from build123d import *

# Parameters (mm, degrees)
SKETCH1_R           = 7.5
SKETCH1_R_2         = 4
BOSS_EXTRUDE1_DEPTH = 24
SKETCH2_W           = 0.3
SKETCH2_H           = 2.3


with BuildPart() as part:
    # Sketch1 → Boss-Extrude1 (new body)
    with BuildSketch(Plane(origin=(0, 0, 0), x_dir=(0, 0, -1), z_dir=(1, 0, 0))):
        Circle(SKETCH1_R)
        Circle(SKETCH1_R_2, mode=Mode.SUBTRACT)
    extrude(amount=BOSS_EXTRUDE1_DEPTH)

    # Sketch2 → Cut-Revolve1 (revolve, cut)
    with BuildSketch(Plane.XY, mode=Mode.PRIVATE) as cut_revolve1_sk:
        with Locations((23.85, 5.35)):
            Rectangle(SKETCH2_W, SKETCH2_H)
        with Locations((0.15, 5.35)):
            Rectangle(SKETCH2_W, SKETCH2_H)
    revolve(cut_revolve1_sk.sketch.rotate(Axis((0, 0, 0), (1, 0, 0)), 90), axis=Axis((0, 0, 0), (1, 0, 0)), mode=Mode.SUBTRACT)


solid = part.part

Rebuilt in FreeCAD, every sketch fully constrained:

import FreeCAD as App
import Part
import Sketcher
Q = App.Units.Quantity

doc = App.newDocument("Part")
body = doc.addObject("PartDesign::Body", "Body")

sketch1 = body.newObject("Sketcher::SketchObject", "Sketch")
sketch1.AttachmentSupport = (doc.getObject("YZ_Plane"), [""])
sketch1.MapMode = "FlatFace"
sketch1.addGeometry([
    Part.Circle(App.Vector(0, 0, 0), App.Vector(0, 0, 1), 7.5),
    Part.Circle(App.Vector(0, 0, 0), App.Vector(0, 0, 1), 4),
], False)
sketch1.addConstraint([
    Sketcher.Constraint("Coincident", 0, 3, -1, 1),
    Sketcher.Constraint("Coincident", 1, 3, -1, 1),
    Sketcher.Constraint("Diameter", 0, Q("15 mm")),
    Sketcher.Constraint("Diameter", 1, Q("8 mm")),
])
pad1 = body.newObject("PartDesign::Pad", "Pad")
pad1.Profile = sketch1
pad1.Length = 24

sketch2 = body.newObject("Sketcher::SketchObject", "Sketch001")
sketch2.AttachmentSupport = (doc.getObject("XY_Plane"), [""])
sketch2.MapMode = "FlatFace"
sketch2.addGeometry([
    Part.LineSegment(App.Vector(23.7, 6.5, 0), App.Vector(23.7, 4.2, 0)),
    Part.LineSegment(App.Vector(23.7, 4.2, 0), App.Vector(24, 4.2, 0)),
    Part.LineSegment(App.Vector(24, 4.2, 0), App.Vector(24, 6.5, 0)),
    Part.LineSegment(App.Vector(24, 6.5, 0), App.Vector(23.7, 6.5, 0)),
    Part.LineSegment(App.Vector(0, 6.5, 0), App.Vector(0, 4.2, 0)),
    Part.LineSegment(App.Vector(0, 4.2, 0), App.Vector(0.3, 4.2, 0)),
    Part.LineSegment(App.Vector(0.3, 4.2, 0), App.Vector(0.3, 6.5, 0)),
    Part.LineSegment(App.Vector(0.3, 6.5, 0), App.Vector(0, 6.5, 0)),
], False)
sketch2.addConstraint([
    Sketcher.Constraint("Coincident", 0, 2, 1, 1),
    Sketcher.Constraint("Coincident", 1, 2, 2, 1),
    Sketcher.Constraint("Coincident", 2, 2, 3, 1),
    Sketcher.Constraint("Coincident", 3, 2, 0, 1),
    Sketcher.Constraint("Coincident", 4, 2, 5, 1),
    Sketcher.Constraint("Coincident", 5, 2, 6, 1),
    Sketcher.Constraint("Coincident", 6, 2, 7, 1),
    Sketcher.Constraint("Coincident", 7, 2, 4, 1),
    Sketcher.Constraint("Vertical", 0),
    Sketcher.Constraint("Horizontal", 1),
    Sketcher.Constraint("Vertical", 2),
    Sketcher.Constraint("Horizontal", 3),
    Sketcher.Constraint("Vertical", 4),
    Sketcher.Constraint("Horizontal", 5),
    Sketcher.Constraint("Vertical", 6),
    Sketcher.Constraint("Horizontal", 7),
    Sketcher.Constraint("PointOnObject", 4, 2, -2),
    Sketcher.Constraint("Horizontal", 1, 2, 4, 2),
    Sketcher.Constraint("Horizontal", 3, 2, 6, 2),
    Sketcher.Constraint("Equal", 3, 5),
    Sketcher.Constraint("DistanceX", 1, 1, 1, 2, Q("0.3 mm")),
    Sketcher.Constraint("DistanceY", 0, 2, 0, 1, Q("2.3 mm")),
    Sketcher.Constraint("DistanceX", -1, 1, 1, 2, Q("24 mm")),
    Sketcher.Constraint("DistanceY", -1, 1, 0, 2, Q("4.2 mm")),
])
groove = body.newObject("PartDesign::Groove", "Groove")
groove.Profile = sketch2
groove.ReferenceAxis = (sketch2, ["H_Axis"])
groove.Angle = 360

doc.recompute()
